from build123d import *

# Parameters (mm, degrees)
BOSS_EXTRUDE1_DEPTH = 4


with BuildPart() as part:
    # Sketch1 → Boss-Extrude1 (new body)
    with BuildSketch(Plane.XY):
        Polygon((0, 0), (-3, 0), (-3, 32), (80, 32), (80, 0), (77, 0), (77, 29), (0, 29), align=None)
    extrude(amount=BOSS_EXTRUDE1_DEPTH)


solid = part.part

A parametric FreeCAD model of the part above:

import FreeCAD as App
import Part
import Sketcher
from FreeCAD import Vector
Q = App.Units.Quantity

doc = App.newDocument("Part")
body = doc.addObject("PartDesign::Body", "Body")

# Sketch on XY plane
sketch1 = body.newObject("Sketcher::SketchObject", "Sketch")
sketch1.AttachmentSupport = (doc.getObject("XY_Plane"), [""])
sketch1.MapMode = "FlatFace"
sketch1.addGeometry([
    Part.LineSegment(Vector(-3, 0, 0), Vector(0, 0, 0)),  # 0
    Part.LineSegment(Vector(0, 0, 0), Vector(0, 29, 0)),  # 1
    Part.LineSegment(Vector(0, 29, 0), Vector(77, 29, 0)),  # 2
    Part.LineSegment(Vector(77, 29, 0), Vector(77, 0, 0)),  # 3
    Part.LineSegment(Vector(77, 0, 0), Vector(80, 0, 0)),  # 4
    Part.LineSegment(Vector(80, 0, 0), Vector(80, 32, 0)),  # 5
    Part.LineSegment(Vector(80, 32, 0), Vector(-3, 32, 0)),  # 6
    Part.LineSegment(Vector(-3, 32, 0), Vector(-3, 0, 0)),  # 7
], False)
sketch1.addConstraint([
    Sketcher.Constraint("Coincident", 0, 2, 1, 1),
    Sketcher.Constraint("Coincident", 1, 2, 2, 1),
    Sketcher.Constraint("Coincident", 2, 2, 3, 1),
    Sketcher.Constraint("Coincident", 3, 2, 4, 1),
    Sketcher.Constraint("Coincident", 4, 2, 5, 1),
    Sketcher.Constraint("Coincident", 5, 2, 6, 1),
    Sketcher.Constraint("Coincident", 6, 2, 7, 1),
    Sketcher.Constraint("Coincident", 7, 2, 0, 1),
    Sketcher.Constraint("Horizontal", 0),
    Sketcher.Constraint("Vertical", 1),
    Sketcher.Constraint("Horizontal", 2),
    Sketcher.Constraint("Vertical", 3),
    Sketcher.Constraint("Horizontal", 4),
    Sketcher.Constraint("Vertical", 5),
    Sketcher.Constraint("Horizontal", 6),
    Sketcher.Constraint("Vertical", 7),
    Sketcher.Constraint("Coincident", 0, 2, -1, 1),
    Sketcher.Constraint("PointOnObject", 3, 2, -1),
    Sketcher.Constraint("Equal", 0, 4),
    Sketcher.Constraint("DistanceX", 0, 1, 0, 2, Q("3 mm")),
    Sketcher.Constraint("DistanceX", 2, 1, 2, 2, Q("77 mm")),
    Sketcher.Constraint("DistanceY", 1, 1, 1, 2, Q("29 mm")),
    Sketcher.Constraint("DistanceY", 5, 1, 5, 2, Q("32 mm")),
])
pad1 = body.newObject("PartDesign::Pad", "Pad")
pad1.Profile = sketch1
pad1.Length = 4

doc.recompute()
